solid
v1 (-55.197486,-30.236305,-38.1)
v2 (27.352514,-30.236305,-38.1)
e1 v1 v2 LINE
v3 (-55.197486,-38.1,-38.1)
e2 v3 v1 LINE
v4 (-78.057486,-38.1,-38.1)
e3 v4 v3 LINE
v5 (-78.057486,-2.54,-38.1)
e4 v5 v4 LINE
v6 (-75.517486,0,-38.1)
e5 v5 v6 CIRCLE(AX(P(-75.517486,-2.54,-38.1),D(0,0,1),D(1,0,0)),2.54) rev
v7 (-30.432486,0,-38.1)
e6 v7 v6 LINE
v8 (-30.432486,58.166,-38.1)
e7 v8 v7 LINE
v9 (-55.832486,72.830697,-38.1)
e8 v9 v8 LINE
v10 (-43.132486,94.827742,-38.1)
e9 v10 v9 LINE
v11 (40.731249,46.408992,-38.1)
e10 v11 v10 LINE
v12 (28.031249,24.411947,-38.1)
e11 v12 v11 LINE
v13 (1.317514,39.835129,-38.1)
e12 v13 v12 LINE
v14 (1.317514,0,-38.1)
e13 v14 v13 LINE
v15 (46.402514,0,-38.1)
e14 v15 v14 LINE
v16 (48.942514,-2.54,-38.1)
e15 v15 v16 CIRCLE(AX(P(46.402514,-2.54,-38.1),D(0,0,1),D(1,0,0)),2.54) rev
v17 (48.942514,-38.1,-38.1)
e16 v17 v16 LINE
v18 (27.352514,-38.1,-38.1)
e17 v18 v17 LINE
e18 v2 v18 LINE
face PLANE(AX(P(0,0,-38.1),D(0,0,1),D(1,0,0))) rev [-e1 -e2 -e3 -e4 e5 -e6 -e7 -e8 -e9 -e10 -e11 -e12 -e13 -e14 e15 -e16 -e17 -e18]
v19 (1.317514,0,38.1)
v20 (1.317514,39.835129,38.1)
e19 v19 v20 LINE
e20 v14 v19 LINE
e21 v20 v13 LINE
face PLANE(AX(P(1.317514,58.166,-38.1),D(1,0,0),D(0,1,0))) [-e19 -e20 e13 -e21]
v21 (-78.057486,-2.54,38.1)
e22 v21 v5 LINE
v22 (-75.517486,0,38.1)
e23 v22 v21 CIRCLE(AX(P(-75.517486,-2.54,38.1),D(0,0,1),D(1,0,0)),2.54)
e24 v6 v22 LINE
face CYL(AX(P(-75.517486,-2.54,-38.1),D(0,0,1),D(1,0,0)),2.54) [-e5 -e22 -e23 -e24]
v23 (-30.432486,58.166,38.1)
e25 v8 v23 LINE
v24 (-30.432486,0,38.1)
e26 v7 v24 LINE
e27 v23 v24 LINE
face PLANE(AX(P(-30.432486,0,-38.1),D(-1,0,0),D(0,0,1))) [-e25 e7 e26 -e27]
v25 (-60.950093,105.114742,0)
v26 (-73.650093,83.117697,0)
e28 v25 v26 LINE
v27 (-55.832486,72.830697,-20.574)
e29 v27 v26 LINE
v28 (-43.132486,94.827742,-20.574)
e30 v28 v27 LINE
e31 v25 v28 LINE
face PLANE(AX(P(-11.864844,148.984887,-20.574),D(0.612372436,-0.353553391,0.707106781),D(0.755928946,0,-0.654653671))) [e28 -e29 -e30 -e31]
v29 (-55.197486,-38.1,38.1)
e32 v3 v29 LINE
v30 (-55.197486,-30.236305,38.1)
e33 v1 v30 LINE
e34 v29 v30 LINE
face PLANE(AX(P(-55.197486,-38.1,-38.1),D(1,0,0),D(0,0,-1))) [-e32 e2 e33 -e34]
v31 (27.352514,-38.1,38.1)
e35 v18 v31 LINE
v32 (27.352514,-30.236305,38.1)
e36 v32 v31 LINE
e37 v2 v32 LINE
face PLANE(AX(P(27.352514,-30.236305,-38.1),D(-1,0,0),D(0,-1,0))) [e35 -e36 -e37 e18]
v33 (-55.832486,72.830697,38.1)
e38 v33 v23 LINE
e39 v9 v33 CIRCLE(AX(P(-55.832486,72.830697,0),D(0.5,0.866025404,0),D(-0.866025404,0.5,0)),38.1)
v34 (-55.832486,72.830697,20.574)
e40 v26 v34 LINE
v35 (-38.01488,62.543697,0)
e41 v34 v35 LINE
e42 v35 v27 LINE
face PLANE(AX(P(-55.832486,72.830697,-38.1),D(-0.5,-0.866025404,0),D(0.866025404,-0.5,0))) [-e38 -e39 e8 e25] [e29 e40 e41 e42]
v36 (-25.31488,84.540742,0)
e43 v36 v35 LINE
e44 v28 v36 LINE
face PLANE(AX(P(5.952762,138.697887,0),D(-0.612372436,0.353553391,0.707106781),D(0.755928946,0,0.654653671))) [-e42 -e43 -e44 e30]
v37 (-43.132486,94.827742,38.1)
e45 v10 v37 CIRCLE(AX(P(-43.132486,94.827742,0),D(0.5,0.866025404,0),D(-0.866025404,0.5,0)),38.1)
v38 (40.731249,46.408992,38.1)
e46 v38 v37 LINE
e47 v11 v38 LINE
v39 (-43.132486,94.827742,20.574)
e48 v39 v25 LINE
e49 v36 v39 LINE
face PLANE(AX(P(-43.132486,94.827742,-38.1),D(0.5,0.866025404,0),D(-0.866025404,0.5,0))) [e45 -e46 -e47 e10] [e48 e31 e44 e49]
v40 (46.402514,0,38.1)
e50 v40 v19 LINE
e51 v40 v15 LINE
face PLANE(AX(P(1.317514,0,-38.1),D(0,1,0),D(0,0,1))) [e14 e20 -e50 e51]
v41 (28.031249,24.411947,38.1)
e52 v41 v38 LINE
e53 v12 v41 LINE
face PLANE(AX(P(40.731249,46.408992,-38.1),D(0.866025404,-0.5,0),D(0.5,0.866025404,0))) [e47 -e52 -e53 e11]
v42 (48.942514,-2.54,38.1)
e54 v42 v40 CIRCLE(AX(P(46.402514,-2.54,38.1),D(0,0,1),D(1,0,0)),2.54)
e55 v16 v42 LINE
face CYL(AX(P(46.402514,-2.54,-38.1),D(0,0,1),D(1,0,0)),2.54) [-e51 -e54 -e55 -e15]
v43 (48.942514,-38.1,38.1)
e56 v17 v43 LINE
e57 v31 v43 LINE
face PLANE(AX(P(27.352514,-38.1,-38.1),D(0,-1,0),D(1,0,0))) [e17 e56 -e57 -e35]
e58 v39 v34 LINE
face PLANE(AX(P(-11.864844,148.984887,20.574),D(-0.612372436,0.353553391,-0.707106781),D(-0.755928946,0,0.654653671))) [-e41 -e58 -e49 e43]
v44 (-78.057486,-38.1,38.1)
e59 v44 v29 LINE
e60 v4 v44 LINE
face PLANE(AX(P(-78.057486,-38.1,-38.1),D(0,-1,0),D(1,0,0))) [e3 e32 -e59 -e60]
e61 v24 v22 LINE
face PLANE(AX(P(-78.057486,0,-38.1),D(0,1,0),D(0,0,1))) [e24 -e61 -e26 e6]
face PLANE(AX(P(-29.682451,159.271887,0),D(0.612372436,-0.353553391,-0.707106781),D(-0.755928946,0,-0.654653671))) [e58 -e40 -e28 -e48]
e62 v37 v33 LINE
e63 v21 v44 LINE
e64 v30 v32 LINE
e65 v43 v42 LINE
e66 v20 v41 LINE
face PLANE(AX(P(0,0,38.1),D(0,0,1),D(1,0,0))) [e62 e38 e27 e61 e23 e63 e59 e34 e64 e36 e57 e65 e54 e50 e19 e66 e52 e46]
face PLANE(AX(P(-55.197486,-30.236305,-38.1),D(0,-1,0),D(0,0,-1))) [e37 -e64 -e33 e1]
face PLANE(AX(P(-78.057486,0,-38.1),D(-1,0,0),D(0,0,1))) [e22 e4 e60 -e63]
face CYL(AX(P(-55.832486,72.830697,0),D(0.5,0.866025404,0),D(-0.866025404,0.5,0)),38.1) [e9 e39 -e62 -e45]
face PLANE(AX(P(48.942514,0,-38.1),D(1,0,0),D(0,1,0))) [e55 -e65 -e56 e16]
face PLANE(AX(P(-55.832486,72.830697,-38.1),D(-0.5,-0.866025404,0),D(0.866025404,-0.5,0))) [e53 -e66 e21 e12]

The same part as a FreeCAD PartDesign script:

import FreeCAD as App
import Part
import Sketcher
Q = App.Units.Quantity


def edges_at(feature, points):
    """Names of the edges that pass closest to the given points."""
    edges = feature.Shape.Edges
    near = lambda p: min(range(len(edges)), key=lambda i: edges[i].distToShape(Part.Vertex(*p))[0])
    return sorted({f"Edge{near(p) + 1}" for p in points})

doc = App.newDocument("Part")
body = doc.addObject("PartDesign::Body", "Body")

# Sketch on XY plane
sketch1 = body.newObject("Sketcher::SketchObject", "Sketch")
sketch1.AttachmentSupport = (doc.getObject("XY_Plane"), [""])
sketch1.MapMode = "FlatFace"
sketch1.addGeometry(Part.LineSegment(App.Vector(-30, 0, 0), App.Vector(-78, 0, 0)), False)
sketch1.addGeometry(Part.LineSegment(App.Vector(-78, 0, 0), App.Vector(-78, -38, 0)), False)
sketch1.addGeometry(Part.LineSegment(App.Vector(-78, -38, 0), App.Vector(-55, -38, 0)), False)
sketch1.addGeometry(Part.LineSegment(App.Vector(-55, -38, 0), App.Vector(-55, -30, 0)), False)
sketch1.addGeometry(Part.LineSegment(App.Vector(-55, -30, 0), App.Vector(27, -30, 0)), False)
sketch1.addGeometry(Part.LineSegment(App.Vector(27, -30, 0), App.Vector(27, -38, 0)), False)
sketch1.addGeometry(Part.LineSegment(App.Vector(27, -38, 0), App.Vector(49, -38, 0)), False)
sketch1.addGeometry(Part.LineSegment(App.Vector(49, -38, 0), App.Vector(49, 0, 0)), False)
sketch1.addGeometry(Part.LineSegment(App.Vector(49, 0, 0), App.Vector(1, 0, 0)), False)
sketch1.addGeometry(Part.LineSegment(App.Vector(1, 0, 0), App.Vector(1, 58, 0)), False)
sketch1.addGeometry(Part.LineSegment(App.Vector(1, 58, 0), App.Vector(-30, 58, 0)), False)
sketch1.addGeometry(Part.LineSegment(App.Vector(-30, 58, 0), App.Vector(-30, 0, 0)), False)
sketch1.addConstraint(Sketcher.Constraint("Coincident", 0, 2, 1, 1))
sketch1.addConstraint(Sketcher.Constraint("Coincident", 1, 2, 2, 1))
sketch1.addConstraint(Sketcher.Constraint("Coincident", 2, 2, 3, 1))
sketch1.addConstraint(Sketcher.Constraint("Coincident", 3, 2, 4, 1))
sketch1.addConstraint(Sketcher.Constraint("Coincident", 4, 2, 5, 1))
sketch1.addConstraint(Sketcher.Constraint("Coincident", 5, 2, 6, 1))
sketch1.addConstraint(Sketcher.Constraint("Coincident", 6, 2, 7, 1))
sketch1.addConstraint(Sketcher.Constraint("Coincident", 7, 2, 8, 1))
sketch1.addConstraint(Sketcher.Constraint("Coincident", 8, 2, 9, 1))
sketch1.addConstraint(Sketcher.Constraint("Coincident", 9, 2, 10, 1))
sketch1.addConstraint(Sketcher.Constraint("Coincident", 10, 2, 11, 1))
sketch1.addConstraint(Sketcher.Constraint("Coincident", 11, 2, 0, 1))
sketch1.addConstraint(Sketcher.Constraint("Horizontal", 0))
sketch1.addConstraint(Sketcher.Constraint("Vertical", 1))
sketch1.addConstraint(Sketcher.Constraint("Horizontal", 2))
sketch1.addConstraint(Sketcher.Constraint("Vertical", 3))
sketch1.addConstraint(Sketcher.Constraint("Horizontal", 4))
sketch1.addConstraint(Sketcher.Constraint("Vertical", 5))
sketch1.addConstraint(Sketcher.Constraint("Horizontal", 6))
sketch1.addConstraint(Sketcher.Constraint("Vertical", 7))
sketch1.addConstraint(Sketcher.Constraint("Horizontal", 8))
sketch1.addConstraint(Sketcher.Constraint("Vertical", 9))
sketch1.addConstraint(Sketcher.Constraint("Horizontal", 10))
sketch1.addConstraint(Sketcher.Constraint("Vertical", 11))
sketch1.addConstraint(Sketcher.Constraint("PointOnObject", 0, 2, -1))
sketch1.addConstraint(Sketcher.Constraint("PointOnObject", 7, 2, -1))
sketch1.addConstraint(Sketcher.Constraint("Horizontal", 2, 2, 5, 2))
sketch1.addConstraint(Sketcher.Constraint("Equal", 0, 8))
sketch1.addConstraint(Sketcher.Constraint("DistanceX", 2, 1, 2, 2, Q("0.9 in")))
sketch1.addConstraint(Sketcher.Constraint("DistanceY", 1, 2, 1, 1, Q("1.5 in")))
sketch1.addConstraint(Sketcher.Constraint("DistanceX", 1, 2, 6, 2, Q("5 in")))
sketch1.addConstraint(Sketcher.Constraint("DistanceX", 4, 1, 4, 2, Q("3.25 in")))
sketch1.addConstraint(Sketcher.Constraint("DistanceX", 10, 2, 10, 1, Q("1.25 in")))
sketch1.addConstraint(Sketcher.Constraint("DistanceY", 9, 1, 9, 2, Q("2.29 in")))
sketch1.addConstraint(Sketcher.Constraint("DistanceY", 3, 1, 3, 2, 7.863695))
sketch1.addConstraint(Sketcher.Constraint("DistanceX", 0, 2, -1, 1, 78.057486))
pad1 = body.newObject("PartDesign::Pad", "Pad")
pad1.Profile = sketch1
pad1.Type = "TwoLengths"
pad1.Length = Q("1.5 in")
pad1.Length2 = Q("1.5 in")
doc.recompute()

fillet = body.newObject("PartDesign::Fillet", "Fillet")
fillet.Base = (pad1, edges_at(pad1, [(48.943, 0, 0)]))
fillet.Radius = Q("0.1 in")
doc.recompute()

fillet2 = body.newObject("PartDesign::Fillet", "Fillet001")
fillet2.Base = (fillet, edges_at(fillet, [(-78.057, 0, 0)]))
fillet2.Radius = Q("0.1 in")

# Sketch on XY plane
sketch2 = body.newObject("Sketcher::SketchObject", "Sketch001")
sketch2.AttachmentSupport = (doc.getObject("XY_Plane"), [""])
sketch2.MapMode = "FlatFace"
sketch2.AttachmentOffset = App.Placement(App.Vector(0, 0, 1.5 * 25.4), App.Rotation())
sketch2.addGeometry(Part.LineSegment(App.Vector(-56, 73, 0), App.Vector(28, 24, 0)), False)
sketch2.addGeometry(Part.LineSegment(App.Vector(28, 24, 0), App.Vector(41, 46, 0)), False)
sketch2.addGeometry(Part.LineSegment(App.Vector(41, 46, 0), App.Vector(-43, 95, 0)), False)
sketch2.addGeometry(Part.LineSegment(App.Vector(-43, 95, 0), App.Vector(-56, 73, 0)), False)
sketch2.addConstraint(Sketcher.Constraint("Coincident", 0, 2, 1, 1))
sketch2.addConstraint(Sketcher.Constraint("Coincident", 1, 2, 2, 1))
sketch2.addConstraint(Sketcher.Constraint("Coincident", 2, 2, 3, 1))
sketch2.addConstraint(Sketcher.Constraint("Coincident", 3, 2, 0, 1))
sketch2.addConstraint(Sketcher.Constraint("Perpendicular", 0, 1))
sketch2.addConstraint(Sketcher.Constraint("Perpendicular", 1, 2))
sketch2.addConstraint(Sketcher.Constraint("Perpendicular", 2, 3))
sketch2.addConstraint(Sketcher.Constraint("Distance", 1, Q("1 in")))
sketch2.addConstraint(Sketcher.Constraint("Angle", 0, Q("-30 deg")))
sketch2.addConstraint(Sketcher.Constraint("Distance", 0, Q("3.8125 in")))
sketch2.addConstraint(Sketcher.Constraint("DistanceX", -1, 1, 0, 2, 28.031249))
sketch2.addConstraint(Sketcher.Constraint("DistanceY", -1, 1, 0, 2, 24.411947))
pad2 = body.newObject("PartDesign::Pad", "Pad001")
pad2.Profile = sketch2
pad2.Length = Q("3 in")
pad2.Reversed = True

# Sketch on an angled plane
sketch3 = body.newObject("Sketcher::SketchObject", "Sketch002")
sketch3.Placement = App.Placement(App.Vector(30.278495, 52.443892, 0), App.Rotation(App.Vector(0.866025404, -0.5, 0), App.Vector(0, 0, -1), App.Vector(0.5, 0.866025404, 0), "ZXY"))
sketch3.addGeometry(Part.Circle(App.Vector(-85, 0, 0), App.Vector(0, 0, 1), 38), False)
sketch3.addConstraint(Sketcher.Constraint("PointOnObject", 0, 3, -1))
sketch3.addConstraint(Sketcher.Constraint("Diameter", 0, Q("3 in")))
sketch3.addConstraint(Sketcher.Constraint("DistanceX", 0, 3, -1, 1, 84.7677))
pad3 = body.newObject("PartDesign::Pad", "Pad002")
pad3.Profile = sketch3
pad3.Length = Q("1 in")
pad3.Reversed = True

# Sketch on an angled plane
sketch4 = body.newObject("Sketcher::SketchObject", "Sketch003")
sketch4.Placement = App.Placement(App.Vector(17.578495, 30.446847, 0), App.Rotation(App.Vector(-0.866025404, 0.5, 0), App.Vector(0, 0, -1), App.Vector(-0.5, -0.866025404, 0), "ZXY"))
sketch4.addGeometry(Part.LineSegment(App.Vector(105, 0, 0), App.Vector(85, 21, 0)), False)
sketch4.addGeometry(Part.LineSegment(App.Vector(85, 21, 0), App.Vector(64, 0, 0)), False)
sketch4.addGeometry(Part.LineSegment(App.Vector(64, 0, 0), App.Vector(85, -21, 0)), False)
sketch4.addGeometry(Part.LineSegment(App.Vector(85, -21, 0), App.Vector(105, 0, 0)), False)
sketch4.addConstraint(Sketcher.Constraint("Coincident", 0, 2, 1, 1))
sketch4.addConstraint(Sketcher.Constraint("Coincident", 1, 2, 2, 1))
sketch4.addConstraint(Sketcher.Constraint("Coincident", 2, 2, 3, 1))
sketch4.addConstraint(Sketcher.Constraint("Coincident", 3, 2, 0, 1))
sketch4.addConstraint(Sketcher.Constraint("Symmetric", 0, 2, 2, 2, -1))
sketch4.addConstraint(Sketcher.Constraint("PointOnObject", 1, 2, -1))
sketch4.addConstraint(Sketcher.Constraint("PointOnObject", 3, 2, -1))
sketch4.addConstraint(Sketcher.Constraint("Perpendicular", 0, 1))
sketch4.addConstraint(Sketcher.Constraint("Perpendicular", 1, 2))
sketch4.addConstraint(Sketcher.Constraint("DistanceY", -1, 1, 0, 2, Q("0.81 in")))
sketch4.addConstraint(Sketcher.Constraint("DistanceX", -1, 1, 0, 2, 84.7677))
pocket1 = body.newObject("PartDesign::Pocket", "Pocket")
pocket1.Profile = sketch4
pocket1.Type = "ThroughAll"

doc.recompute()
